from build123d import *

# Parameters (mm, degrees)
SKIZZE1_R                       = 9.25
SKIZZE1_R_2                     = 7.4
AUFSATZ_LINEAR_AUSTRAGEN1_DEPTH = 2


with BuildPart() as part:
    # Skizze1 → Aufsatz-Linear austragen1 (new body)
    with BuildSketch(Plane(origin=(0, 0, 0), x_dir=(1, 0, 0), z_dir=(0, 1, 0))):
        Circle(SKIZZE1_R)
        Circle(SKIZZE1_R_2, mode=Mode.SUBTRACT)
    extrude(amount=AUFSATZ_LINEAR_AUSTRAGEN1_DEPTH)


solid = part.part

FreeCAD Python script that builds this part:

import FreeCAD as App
import Part
import Sketcher
from FreeCAD import Vector
Q = App.Units.Quantity

doc = App.newDocument("Part")
body = doc.addObject("PartDesign::Body", "Body")

# Sketch on XZ plane
sketch1 = doc.addObject("Sketcher::SketchObject", "Sketch")
body.addObject(sketch1)
sketch1.AttachmentSupport = (doc.XZ_Plane, [""])
sketch1.MapMode = "FlatFace"
sketch1.addGeometry(Part.Circle(Vector(0, 0, 0), Vector(0, 0, 1), 9), False)
sketch1.addGeometry(Part.Circle(Vector(0, 0, 0), Vector(0, 0, 1), 7), False)
sketch1.addConstraint(Sketcher.Constraint("Coincident", 0, 3, -1, 1))
sketch1.addConstraint(Sketcher.Constraint("Coincident", 1, 3, -1, 1))
sketch1.addConstraint(Sketcher.Constraint("Diameter", 0, Q("18.5 mm")))
sketch1.addConstraint(Sketcher.Constraint("Diameter", 1, Q("14.8 mm")))
pad1 = doc.addObject("PartDesign::Pad", "Pad")
body.addObject(pad1)
pad1.Profile = sketch1
pad1.Length = 2
pad1.Reversed = True

doc.recompute()
